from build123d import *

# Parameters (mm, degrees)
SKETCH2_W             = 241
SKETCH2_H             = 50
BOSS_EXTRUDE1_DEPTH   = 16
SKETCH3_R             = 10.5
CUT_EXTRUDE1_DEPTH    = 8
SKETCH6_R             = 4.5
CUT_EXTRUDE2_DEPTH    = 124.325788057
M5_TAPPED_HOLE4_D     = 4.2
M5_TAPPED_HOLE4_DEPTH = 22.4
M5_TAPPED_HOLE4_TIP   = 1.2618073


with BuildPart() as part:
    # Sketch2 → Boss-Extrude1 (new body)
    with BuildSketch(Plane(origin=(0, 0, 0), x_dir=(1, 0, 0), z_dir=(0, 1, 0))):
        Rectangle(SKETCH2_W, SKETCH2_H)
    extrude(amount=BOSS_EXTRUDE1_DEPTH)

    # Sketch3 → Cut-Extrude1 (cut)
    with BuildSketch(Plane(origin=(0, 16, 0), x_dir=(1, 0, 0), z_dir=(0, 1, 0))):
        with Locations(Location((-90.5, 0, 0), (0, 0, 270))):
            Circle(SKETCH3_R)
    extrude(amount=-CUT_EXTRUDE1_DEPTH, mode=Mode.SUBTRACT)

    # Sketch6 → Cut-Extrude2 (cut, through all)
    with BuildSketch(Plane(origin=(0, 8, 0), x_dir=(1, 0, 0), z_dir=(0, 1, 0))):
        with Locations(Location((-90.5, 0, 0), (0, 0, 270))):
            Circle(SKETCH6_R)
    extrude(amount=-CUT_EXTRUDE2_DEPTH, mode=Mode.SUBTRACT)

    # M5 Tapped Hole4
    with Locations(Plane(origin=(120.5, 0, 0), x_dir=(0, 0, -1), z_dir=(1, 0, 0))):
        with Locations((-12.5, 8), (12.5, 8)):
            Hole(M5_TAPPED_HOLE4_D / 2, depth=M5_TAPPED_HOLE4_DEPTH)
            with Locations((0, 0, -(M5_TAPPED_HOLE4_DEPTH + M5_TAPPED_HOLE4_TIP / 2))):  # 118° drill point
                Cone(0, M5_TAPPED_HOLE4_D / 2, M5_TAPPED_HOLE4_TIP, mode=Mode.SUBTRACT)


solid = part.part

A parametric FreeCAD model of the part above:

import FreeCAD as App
import Part
import Sketcher

V = App.Vector

doc = App.newDocument("Part")
body = doc.addObject("PartDesign::Body", "Body")

# Sketch on XZ plane
sketch1 = doc.addObject("Sketcher::SketchObject", "Sketch")
body.addObject(sketch1)
sketch1.AttachmentSupport = (doc.XZ_Plane, [""])
sketch1.MapMode = "FlatFace"
sketch1.addGeometry([
    Part.LineSegment(V(-120, -25, 0), V(-120, 25, 0)),
    Part.LineSegment(V(-120, 25, 0), V(120, 25, 0)),
    Part.LineSegment(V(120, 25, 0), V(120, -25, 0)),
    Part.LineSegment(V(120, -25, 0), V(-120, -25, 0)),
], False)
sketch1.addConstraint([
    Sketcher.Constraint("Coincident", 0, 2, 1, 1),
    Sketcher.Constraint("Coincident", 1, 2, 2, 1),
    Sketcher.Constraint("Coincident", 2, 2, 3, 1),
    Sketcher.Constraint("Coincident", 3, 2, 0, 1),
    Sketcher.Constraint("Vertical", 0),
    Sketcher.Constraint("Horizontal", 1),
    Sketcher.Constraint("Vertical", 2),
    Sketcher.Constraint("Horizontal", 3),
    Sketcher.Constraint("Symmetric", 0, 2, 2, 2, -1, 1),
    Sketcher.Constraint("DistanceX", 1, 1, 1, 2, 241.0),
    Sketcher.Constraint("DistanceY", 0, 1, 0, 2, 50.0),
])
pad1 = doc.addObject("PartDesign::Pad", "Pad")
body.addObject(pad1)
pad1.Profile = sketch1
pad1.Length = 16
pad1.Reversed = True

# Sketch on XZ plane
sketch2 = doc.addObject("Sketcher::SketchObject", "Sketch001")
body.addObject(sketch2)
sketch2.AttachmentSupport = (doc.XZ_Plane, [""])
sketch2.MapMode = "FlatFace"
sketch2.AttachmentOffset = App.Placement(V(0, 0, -16), App.Rotation())
sketch2.addGeometry(Part.Circle(V(-90, 0, 0), V(0, 0, 1), 10), False)
sketch2.addConstraint([
    Sketcher.Constraint("PointOnObject", 0, 3, -1),
    Sketcher.Constraint("Diameter", 0, 21.0),
    Sketcher.Constraint("DistanceX", 0, 3, -1, 1, 90.5),
])
pocket1 = doc.addObject("PartDesign::Pocket", "Pocket")
body.addObject(pocket1)
pocket1.Profile = sketch2
pocket1.Length = 8
pocket1.Reversed = True

# Sketch on XZ plane
sketch3 = doc.addObject("Sketcher::SketchObject", "Sketch002")
body.addObject(sketch3)
sketch3.AttachmentSupport = (doc.XZ_Plane, [""])
sketch3.MapMode = "FlatFace"
sketch3.AttachmentOffset = App.Placement(V(0, 0, -8), App.Rotation())
sketch3.addGeometry(Part.Circle(V(-90.5, 0, 0), V(0, 0, 1), 4.5), False)
sketch3.addConstraint([
    Sketcher.Constraint("PointOnObject", 0, 3, -1),
    Sketcher.Constraint("Diameter", 0, 9.0),
    Sketcher.Constraint("DistanceX", 0, 3, -1, 1, 90.5),
])
pocket2 = doc.addObject("PartDesign::Pocket", "Pocket001")
body.addObject(pocket2)
pocket2.Profile = sketch3
pocket2.Type = "ThroughAll"
pocket2.Reversed = True

# Sketch on YZ plane
sketch4 = doc.addObject("Sketcher::SketchObject", "Sketch003")
body.addObject(sketch4)
sketch4.AttachmentSupport = (doc.YZ_Plane, [""])
sketch4.MapMode = "FlatFace"
sketch4.AttachmentOffset = App.Placement(V(0, 0, 120.5), App.Rotation())
sketch4.addGeometry([
    Part.Circle(V(8, 12.5, 0), V(0, 0, 1), 2.1),
    Part.Circle(V(8, -12.5, 0), V(0, 0, 1), 2.1),
], False)
sketch4.addConstraint([
    Sketcher.Constraint("Equal", 0, 1),
    Sketcher.Constraint("Symmetric", 0, 3, 1, 3, -1),
    Sketcher.Constraint("Diameter", 0, 4.2),
    Sketcher.Constraint("DistanceX", -1, 1, 0, 3, 8.0),
    Sketcher.Constraint("DistanceY", 1, 3, 0, 3, 25.0),
])
doc.recompute()
hole = doc.addObject("PartDesign::Hole", "Hole")
body.addObject(hole)
hole.Profile = sketch4
hole.ThreadType = "None"
hole.Diameter = 4.2
hole.DepthType = "Dimension"
hole.Depth = 22.4
hole.DrillPoint = "Angled"
hole.DrillPointAngle = 118

doc.recompute()
